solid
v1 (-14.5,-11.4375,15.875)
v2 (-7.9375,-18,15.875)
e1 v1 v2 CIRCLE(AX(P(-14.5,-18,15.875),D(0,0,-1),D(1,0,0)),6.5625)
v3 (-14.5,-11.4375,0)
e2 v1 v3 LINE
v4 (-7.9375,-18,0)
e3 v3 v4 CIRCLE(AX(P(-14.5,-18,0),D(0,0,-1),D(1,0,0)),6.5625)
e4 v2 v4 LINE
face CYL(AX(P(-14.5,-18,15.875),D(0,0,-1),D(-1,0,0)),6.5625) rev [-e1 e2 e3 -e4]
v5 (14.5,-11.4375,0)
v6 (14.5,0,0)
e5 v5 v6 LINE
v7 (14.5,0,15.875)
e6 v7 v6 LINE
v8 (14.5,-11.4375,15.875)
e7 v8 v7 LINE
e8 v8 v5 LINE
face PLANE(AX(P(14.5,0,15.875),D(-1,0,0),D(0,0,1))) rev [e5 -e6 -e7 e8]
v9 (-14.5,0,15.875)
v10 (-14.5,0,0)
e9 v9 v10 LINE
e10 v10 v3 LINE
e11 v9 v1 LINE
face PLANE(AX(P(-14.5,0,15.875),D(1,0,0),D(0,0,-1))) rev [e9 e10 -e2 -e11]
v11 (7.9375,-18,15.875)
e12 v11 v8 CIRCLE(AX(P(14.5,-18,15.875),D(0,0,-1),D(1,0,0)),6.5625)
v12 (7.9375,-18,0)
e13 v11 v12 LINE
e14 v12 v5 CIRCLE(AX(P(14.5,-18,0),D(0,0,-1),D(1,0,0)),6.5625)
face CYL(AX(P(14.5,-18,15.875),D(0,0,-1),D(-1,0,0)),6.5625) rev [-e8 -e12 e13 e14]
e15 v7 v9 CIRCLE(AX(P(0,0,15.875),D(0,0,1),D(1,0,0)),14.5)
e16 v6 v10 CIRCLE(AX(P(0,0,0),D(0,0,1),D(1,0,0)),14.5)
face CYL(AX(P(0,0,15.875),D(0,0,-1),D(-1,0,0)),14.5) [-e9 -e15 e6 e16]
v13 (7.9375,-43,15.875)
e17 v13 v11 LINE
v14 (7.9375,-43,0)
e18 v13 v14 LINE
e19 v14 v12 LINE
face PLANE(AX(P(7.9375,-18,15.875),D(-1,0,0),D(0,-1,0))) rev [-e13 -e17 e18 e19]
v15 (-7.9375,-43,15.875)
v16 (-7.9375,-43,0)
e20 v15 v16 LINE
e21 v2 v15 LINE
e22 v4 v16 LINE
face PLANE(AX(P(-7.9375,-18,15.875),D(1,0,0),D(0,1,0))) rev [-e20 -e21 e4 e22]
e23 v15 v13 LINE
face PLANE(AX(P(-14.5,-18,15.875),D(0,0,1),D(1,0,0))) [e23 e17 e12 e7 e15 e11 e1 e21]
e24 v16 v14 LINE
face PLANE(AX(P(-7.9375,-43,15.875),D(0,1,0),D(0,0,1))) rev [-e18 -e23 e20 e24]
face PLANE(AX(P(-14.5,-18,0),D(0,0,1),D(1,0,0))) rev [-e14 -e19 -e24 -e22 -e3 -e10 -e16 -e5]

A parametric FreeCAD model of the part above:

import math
import FreeCAD as App
import Part
import Sketcher
from FreeCAD import Vector
Q = App.Units.Quantity

doc = App.newDocument("Part")
body = doc.addObject("PartDesign::Body", "Body")

# Sketch on XY plane
sketch1 = body.newObject("Sketcher::SketchObject", "Sketch")
sketch1.AttachmentSupport = (doc.getObject("XY_Plane"), [""])
sketch1.MapMode = "FlatFace"
sketch1.addGeometry(Part.LineSegment(Vector(-8, -18, 0), Vector(-8, -43, 0)), False)
sketch1.addGeometry(Part.LineSegment(Vector(-8, -43, 0), Vector(8, -43, 0)), False)
sketch1.addGeometry(Part.LineSegment(Vector(8, -43, 0), Vector(8, -18, 0)), False)
sketch1.addGeometry(Part.ArcOfCircle(Part.Circle(Vector(14, -18, 0), Vector(0, 0, 1), 7), math.radians(90), math.radians(180)), False)
sketch1.addGeometry(Part.LineSegment(Vector(14, -11, 0), Vector(14, 0, 0)), False)
sketch1.addGeometry(Part.ArcOfCircle(Part.Circle(Vector(0, 0, 0), Vector(0, 0, 1), 14), math.radians(0), math.radians(180)), False)
sketch1.addGeometry(Part.LineSegment(Vector(-14, 0, 0), Vector(-14, -11, 0)), False)
sketch1.addGeometry(Part.ArcOfCircle(Part.Circle(Vector(-14, -18, 0), Vector(0, 0, 1), 7), math.radians(0), math.radians(90)), False)
sketch1.addConstraint(Sketcher.Constraint("Coincident", 0, 2, 1, 1))
sketch1.addConstraint(Sketcher.Constraint("Coincident", 1, 2, 2, 1))
sketch1.addConstraint(Sketcher.Constraint("Tangent", 2, 2, 3, 2))
sketch1.addConstraint(Sketcher.Constraint("Coincident", 3, 1, 4, 1))
sketch1.addConstraint(Sketcher.Constraint("Tangent", 4, 2, 5, 1))
sketch1.addConstraint(Sketcher.Constraint("Tangent", 5, 2, 6, 1))
sketch1.addConstraint(Sketcher.Constraint("Coincident", 6, 2, 7, 2))
sketch1.addConstraint(Sketcher.Constraint("Tangent", 7, 1, 0, 1))
sketch1.addConstraint(Sketcher.Constraint("Vertical", 0))
sketch1.addConstraint(Sketcher.Constraint("Horizontal", 1))
sketch1.addConstraint(Sketcher.Constraint("Vertical", 2))
sketch1.addConstraint(Sketcher.Constraint("Vertical", 4))
sketch1.addConstraint(Sketcher.Constraint("Vertical", 6))
sketch1.addConstraint(Sketcher.Constraint("Coincident", 5, 3, -1, 1))
sketch1.addConstraint(Sketcher.Constraint("Equal", 3, 7))
sketch1.addConstraint(Sketcher.Constraint("Symmetric", 3, 3, 7, 3, -2))
sketch1.addConstraint(Sketcher.Constraint("Vertical", 7, 3, 5, 2))
sketch1.addConstraint(Sketcher.Constraint("Radius", 5, Q("14.5 mm")))
sketch1.addConstraint(Sketcher.Constraint("DistanceY", 0, 2, 0, 1, Q("25 mm")))
sketch1.addConstraint(Sketcher.Constraint("DistanceY", 3, 3, -1, 1, Q("18 mm")))
sketch1.addConstraint(Sketcher.Constraint("Radius", 3, Q("6.5625 mm")))
pad1 = body.newObject("PartDesign::Pad", "Pad")
pad1.Profile = sketch1
pad1.Length = 15.875

doc.recompute()
